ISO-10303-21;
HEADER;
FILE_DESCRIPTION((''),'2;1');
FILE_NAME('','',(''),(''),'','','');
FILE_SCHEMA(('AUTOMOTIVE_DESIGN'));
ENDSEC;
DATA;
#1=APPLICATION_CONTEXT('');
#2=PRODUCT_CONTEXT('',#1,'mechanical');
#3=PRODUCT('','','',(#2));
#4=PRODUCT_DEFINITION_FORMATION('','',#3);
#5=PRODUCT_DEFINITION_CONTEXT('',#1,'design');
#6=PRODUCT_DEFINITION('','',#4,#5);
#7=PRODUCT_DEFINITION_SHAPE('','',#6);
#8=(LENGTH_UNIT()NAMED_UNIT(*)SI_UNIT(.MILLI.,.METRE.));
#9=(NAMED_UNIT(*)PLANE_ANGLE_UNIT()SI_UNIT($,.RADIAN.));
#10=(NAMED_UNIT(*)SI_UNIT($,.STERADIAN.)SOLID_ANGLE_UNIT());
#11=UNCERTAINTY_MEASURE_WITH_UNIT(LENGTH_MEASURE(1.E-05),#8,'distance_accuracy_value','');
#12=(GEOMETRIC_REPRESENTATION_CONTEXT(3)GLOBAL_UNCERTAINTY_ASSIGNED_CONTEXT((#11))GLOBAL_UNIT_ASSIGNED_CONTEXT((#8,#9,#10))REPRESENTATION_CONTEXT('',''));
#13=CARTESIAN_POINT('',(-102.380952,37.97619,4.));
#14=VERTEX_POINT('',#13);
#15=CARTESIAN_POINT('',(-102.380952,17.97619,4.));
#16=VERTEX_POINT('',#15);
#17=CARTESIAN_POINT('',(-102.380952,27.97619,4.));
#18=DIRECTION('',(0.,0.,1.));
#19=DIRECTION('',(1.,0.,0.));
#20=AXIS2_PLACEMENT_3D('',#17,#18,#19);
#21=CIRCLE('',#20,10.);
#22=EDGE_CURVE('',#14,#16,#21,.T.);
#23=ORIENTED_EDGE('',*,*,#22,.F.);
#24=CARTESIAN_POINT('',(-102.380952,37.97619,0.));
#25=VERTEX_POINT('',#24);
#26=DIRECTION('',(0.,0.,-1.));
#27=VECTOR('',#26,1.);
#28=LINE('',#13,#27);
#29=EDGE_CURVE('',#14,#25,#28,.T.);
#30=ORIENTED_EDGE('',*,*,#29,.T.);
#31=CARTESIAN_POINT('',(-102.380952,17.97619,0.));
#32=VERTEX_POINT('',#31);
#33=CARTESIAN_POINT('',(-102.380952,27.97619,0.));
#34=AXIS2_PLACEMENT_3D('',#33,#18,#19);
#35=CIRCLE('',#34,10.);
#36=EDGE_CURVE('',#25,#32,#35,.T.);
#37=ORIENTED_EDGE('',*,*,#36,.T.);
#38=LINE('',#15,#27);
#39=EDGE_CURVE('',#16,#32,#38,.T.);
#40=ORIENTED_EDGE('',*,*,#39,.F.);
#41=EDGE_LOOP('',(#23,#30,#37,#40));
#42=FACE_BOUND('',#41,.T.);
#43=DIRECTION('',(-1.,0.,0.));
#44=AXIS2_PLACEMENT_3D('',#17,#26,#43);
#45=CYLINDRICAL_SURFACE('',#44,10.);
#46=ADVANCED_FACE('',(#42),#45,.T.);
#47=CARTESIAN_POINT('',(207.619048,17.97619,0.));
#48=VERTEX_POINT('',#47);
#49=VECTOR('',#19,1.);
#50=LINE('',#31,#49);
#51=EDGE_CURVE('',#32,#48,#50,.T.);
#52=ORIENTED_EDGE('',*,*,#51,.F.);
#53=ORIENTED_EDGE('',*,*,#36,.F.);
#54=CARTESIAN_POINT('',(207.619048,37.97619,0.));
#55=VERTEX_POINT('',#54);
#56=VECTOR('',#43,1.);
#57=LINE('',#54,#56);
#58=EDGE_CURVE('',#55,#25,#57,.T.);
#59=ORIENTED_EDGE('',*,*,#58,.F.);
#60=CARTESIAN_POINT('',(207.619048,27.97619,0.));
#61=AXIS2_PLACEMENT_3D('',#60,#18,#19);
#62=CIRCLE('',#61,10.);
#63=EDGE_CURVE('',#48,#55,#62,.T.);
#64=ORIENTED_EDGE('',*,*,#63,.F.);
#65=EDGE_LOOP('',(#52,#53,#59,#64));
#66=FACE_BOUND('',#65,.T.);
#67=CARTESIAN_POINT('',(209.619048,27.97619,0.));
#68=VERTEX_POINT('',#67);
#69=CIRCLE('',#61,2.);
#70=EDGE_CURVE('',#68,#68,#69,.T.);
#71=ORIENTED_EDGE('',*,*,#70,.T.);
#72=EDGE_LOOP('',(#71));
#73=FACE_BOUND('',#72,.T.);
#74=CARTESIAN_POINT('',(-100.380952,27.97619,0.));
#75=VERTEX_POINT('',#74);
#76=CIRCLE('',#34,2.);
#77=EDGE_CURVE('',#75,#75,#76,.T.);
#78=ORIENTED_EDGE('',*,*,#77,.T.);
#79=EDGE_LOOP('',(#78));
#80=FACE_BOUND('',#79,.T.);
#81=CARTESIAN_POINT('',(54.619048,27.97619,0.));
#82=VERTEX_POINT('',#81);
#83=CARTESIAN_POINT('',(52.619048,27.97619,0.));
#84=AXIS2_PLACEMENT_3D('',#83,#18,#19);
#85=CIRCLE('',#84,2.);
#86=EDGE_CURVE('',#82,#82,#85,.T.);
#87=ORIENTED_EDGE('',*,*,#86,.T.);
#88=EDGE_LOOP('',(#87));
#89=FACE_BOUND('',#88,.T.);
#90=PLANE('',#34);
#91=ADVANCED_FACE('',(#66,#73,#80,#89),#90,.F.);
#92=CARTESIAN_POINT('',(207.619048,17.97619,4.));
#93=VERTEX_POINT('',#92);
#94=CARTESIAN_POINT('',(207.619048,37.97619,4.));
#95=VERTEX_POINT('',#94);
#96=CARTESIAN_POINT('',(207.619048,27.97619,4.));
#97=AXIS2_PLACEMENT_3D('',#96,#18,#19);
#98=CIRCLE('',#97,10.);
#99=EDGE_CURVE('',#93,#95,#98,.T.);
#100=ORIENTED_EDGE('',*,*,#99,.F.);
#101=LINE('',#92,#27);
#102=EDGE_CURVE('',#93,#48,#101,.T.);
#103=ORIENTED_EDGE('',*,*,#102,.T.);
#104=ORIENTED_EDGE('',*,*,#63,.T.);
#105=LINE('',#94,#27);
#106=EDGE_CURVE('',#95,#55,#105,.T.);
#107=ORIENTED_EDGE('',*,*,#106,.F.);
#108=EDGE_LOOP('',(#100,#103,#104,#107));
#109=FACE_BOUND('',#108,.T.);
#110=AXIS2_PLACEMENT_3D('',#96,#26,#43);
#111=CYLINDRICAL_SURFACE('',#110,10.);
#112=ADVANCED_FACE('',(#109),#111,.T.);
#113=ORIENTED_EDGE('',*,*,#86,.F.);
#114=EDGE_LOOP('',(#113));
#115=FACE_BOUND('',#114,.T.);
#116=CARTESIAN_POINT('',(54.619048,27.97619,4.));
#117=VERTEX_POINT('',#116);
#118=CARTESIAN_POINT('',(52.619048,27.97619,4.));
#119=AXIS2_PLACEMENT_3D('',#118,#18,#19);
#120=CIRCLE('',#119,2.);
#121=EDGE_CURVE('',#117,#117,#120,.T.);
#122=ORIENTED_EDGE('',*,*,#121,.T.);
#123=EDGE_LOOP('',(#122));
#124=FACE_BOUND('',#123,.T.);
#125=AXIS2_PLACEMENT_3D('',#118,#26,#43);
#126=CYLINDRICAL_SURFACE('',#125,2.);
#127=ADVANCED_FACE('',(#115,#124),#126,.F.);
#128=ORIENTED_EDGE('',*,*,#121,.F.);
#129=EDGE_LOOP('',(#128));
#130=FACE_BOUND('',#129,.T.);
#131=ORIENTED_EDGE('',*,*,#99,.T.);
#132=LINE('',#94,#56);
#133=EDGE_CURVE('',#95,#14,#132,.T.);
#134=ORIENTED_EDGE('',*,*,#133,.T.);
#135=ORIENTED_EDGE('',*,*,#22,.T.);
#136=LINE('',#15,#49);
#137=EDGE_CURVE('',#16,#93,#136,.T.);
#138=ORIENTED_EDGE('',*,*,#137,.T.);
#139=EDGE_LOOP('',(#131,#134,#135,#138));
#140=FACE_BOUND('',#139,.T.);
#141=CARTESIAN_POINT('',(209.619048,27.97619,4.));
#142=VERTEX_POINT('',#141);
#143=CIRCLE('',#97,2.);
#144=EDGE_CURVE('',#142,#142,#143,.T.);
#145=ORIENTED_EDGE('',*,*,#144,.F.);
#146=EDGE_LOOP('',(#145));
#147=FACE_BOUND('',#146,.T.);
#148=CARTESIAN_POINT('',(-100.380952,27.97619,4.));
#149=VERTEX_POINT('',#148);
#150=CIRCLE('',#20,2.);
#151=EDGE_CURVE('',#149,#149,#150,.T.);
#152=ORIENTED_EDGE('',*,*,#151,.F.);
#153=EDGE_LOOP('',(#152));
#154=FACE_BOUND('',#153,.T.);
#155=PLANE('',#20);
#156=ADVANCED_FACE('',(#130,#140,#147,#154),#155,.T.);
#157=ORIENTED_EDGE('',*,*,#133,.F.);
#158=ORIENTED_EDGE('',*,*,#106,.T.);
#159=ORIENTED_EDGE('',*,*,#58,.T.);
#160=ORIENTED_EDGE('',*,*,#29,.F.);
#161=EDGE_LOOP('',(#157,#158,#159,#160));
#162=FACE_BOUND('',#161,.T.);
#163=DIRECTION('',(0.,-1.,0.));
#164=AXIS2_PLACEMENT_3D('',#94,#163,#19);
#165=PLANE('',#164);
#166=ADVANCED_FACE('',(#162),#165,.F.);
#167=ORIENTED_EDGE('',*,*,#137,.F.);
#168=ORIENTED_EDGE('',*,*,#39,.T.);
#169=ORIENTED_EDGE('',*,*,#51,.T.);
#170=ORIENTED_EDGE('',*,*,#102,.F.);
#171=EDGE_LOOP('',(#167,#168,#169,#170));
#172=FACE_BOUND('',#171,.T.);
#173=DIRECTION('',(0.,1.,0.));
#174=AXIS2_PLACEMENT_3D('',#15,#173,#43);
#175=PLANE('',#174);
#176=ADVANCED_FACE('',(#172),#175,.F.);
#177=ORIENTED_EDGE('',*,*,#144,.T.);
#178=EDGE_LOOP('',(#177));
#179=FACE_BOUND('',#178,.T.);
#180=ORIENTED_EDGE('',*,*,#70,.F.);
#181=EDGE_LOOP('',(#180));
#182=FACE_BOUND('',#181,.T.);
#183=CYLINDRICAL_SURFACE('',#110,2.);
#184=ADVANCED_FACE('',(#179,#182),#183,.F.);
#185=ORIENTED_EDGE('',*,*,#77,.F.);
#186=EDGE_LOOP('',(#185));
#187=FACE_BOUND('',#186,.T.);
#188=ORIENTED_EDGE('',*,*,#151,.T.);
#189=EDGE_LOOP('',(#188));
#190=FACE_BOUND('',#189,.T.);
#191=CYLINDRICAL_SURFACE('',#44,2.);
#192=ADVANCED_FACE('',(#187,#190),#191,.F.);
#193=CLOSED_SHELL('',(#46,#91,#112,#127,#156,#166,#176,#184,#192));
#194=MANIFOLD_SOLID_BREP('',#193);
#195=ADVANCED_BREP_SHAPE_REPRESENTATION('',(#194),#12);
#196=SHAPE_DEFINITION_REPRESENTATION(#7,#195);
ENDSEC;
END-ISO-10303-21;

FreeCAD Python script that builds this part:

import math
import FreeCAD as App
import Part
import Sketcher
from FreeCAD import Vector
Q = App.Units.Quantity

doc = App.newDocument("Part")
params = doc.addObject("Spreadsheet::Sheet", "Params")
for row, (alias, value) in enumerate([
    ("sketch1_diameter", "4 mm"),
    ("sketch1_radius", "10 mm"),
    ("sketch1_width", "310 mm"),
    ("pad1_length", "4 mm"),
], start=1):
    params.set(f"A{row}", alias)
    params.set(f"B{row}", "=" + value)
    params.setAlias(f"B{row}", alias)

body = doc.addObject("PartDesign::Body", "Body")

# Sketch on XY plane
sketch1 = body.newObject("Sketcher::SketchObject", "Sketch")
sketch1.AttachmentSupport = (doc.getObject("XY_Plane"), [""])
sketch1.MapMode = "FlatFace"
sketch1.addGeometry(Part.LineSegment(Vector(-102.4, 18, 0), Vector(207.6, 18, 0)), False)
sketch1.addGeometry(Part.ArcOfCircle(Part.Circle(Vector(207.6, 28, 0), Vector(0, 0, 1), 10), math.radians(-90), math.radians(90)), False)
sketch1.addGeometry(Part.LineSegment(Vector(207.6, 38, 0), Vector(-102.4, 38, 0)), False)
sketch1.addGeometry(Part.ArcOfCircle(Part.Circle(Vector(-102.4, 28, 0), Vector(0, 0, 1), 10), math.radians(90), math.radians(270)), False)
sketch1.addGeometry(Part.Circle(Vector(-102.4, 28, 0), Vector(0, 0, 1), 2), False)
sketch1.addGeometry(Part.Circle(Vector(52.6, 28, 0), Vector(0, 0, 1), 2), False)
sketch1.addGeometry(Part.Circle(Vector(207.6, 28, 0), Vector(0, 0, 1), 2), False)
sketch1.addConstraint(Sketcher.Constraint("Tangent", 0, 2, 1, 1))
sketch1.addConstraint(Sketcher.Constraint("Tangent", 1, 2, 2, 1))
sketch1.addConstraint(Sketcher.Constraint("Tangent", 2, 2, 3, 1))
sketch1.addConstraint(Sketcher.Constraint("Tangent", 3, 2, 0, 1))
sketch1.addConstraint(Sketcher.Constraint("Horizontal", 0))
sketch1.addConstraint(Sketcher.Constraint("Horizontal", 2))
sketch1.addConstraint(Sketcher.Constraint("Coincident", 4, 3, 3, 3))
sketch1.addConstraint(Sketcher.Constraint("Coincident", 6, 3, 1, 3))
sketch1.addConstraint(Sketcher.Constraint("Equal", 4, 5))
sketch1.addConstraint(Sketcher.Constraint("Equal", 5, 6))
sketch1.addConstraint(Sketcher.Constraint("Horizontal", 4, 3, 5, 3))
sketch1.addConstraint(Sketcher.Constraint("Diameter", 4, Q("4 mm")))
sketch1.addConstraint(Sketcher.Constraint("Radius", 1, Q("10 mm")))
sketch1.addConstraint(Sketcher.Constraint("DistanceX", 0, 1, 0, 2, Q("310 mm")))
sketch1.addConstraint(Sketcher.Constraint("DistanceX", 5, 3, 1, 3, Q("155 mm")))
sketch1.addConstraint(Sketcher.Constraint("DistanceY", -1, 1, 1, 3, Q("27.97619 mm")))
sketch1.addConstraint(Sketcher.Constraint("DistanceX", -1, 1, 1, 3, Q("207.619048 mm")))
sketch1.setExpression("Constraints[11]", "Params.sketch1_diameter")
sketch1.setExpression("Constraints[12]", "Params.sketch1_radius")
sketch1.setExpression("Constraints[13]", "Params.sketch1_width")
pad1 = body.newObject("PartDesign::Pad", "Pad")
pad1.Profile = sketch1
pad1.setExpression("Length", "Params.pad1_length")

doc.recompute()
